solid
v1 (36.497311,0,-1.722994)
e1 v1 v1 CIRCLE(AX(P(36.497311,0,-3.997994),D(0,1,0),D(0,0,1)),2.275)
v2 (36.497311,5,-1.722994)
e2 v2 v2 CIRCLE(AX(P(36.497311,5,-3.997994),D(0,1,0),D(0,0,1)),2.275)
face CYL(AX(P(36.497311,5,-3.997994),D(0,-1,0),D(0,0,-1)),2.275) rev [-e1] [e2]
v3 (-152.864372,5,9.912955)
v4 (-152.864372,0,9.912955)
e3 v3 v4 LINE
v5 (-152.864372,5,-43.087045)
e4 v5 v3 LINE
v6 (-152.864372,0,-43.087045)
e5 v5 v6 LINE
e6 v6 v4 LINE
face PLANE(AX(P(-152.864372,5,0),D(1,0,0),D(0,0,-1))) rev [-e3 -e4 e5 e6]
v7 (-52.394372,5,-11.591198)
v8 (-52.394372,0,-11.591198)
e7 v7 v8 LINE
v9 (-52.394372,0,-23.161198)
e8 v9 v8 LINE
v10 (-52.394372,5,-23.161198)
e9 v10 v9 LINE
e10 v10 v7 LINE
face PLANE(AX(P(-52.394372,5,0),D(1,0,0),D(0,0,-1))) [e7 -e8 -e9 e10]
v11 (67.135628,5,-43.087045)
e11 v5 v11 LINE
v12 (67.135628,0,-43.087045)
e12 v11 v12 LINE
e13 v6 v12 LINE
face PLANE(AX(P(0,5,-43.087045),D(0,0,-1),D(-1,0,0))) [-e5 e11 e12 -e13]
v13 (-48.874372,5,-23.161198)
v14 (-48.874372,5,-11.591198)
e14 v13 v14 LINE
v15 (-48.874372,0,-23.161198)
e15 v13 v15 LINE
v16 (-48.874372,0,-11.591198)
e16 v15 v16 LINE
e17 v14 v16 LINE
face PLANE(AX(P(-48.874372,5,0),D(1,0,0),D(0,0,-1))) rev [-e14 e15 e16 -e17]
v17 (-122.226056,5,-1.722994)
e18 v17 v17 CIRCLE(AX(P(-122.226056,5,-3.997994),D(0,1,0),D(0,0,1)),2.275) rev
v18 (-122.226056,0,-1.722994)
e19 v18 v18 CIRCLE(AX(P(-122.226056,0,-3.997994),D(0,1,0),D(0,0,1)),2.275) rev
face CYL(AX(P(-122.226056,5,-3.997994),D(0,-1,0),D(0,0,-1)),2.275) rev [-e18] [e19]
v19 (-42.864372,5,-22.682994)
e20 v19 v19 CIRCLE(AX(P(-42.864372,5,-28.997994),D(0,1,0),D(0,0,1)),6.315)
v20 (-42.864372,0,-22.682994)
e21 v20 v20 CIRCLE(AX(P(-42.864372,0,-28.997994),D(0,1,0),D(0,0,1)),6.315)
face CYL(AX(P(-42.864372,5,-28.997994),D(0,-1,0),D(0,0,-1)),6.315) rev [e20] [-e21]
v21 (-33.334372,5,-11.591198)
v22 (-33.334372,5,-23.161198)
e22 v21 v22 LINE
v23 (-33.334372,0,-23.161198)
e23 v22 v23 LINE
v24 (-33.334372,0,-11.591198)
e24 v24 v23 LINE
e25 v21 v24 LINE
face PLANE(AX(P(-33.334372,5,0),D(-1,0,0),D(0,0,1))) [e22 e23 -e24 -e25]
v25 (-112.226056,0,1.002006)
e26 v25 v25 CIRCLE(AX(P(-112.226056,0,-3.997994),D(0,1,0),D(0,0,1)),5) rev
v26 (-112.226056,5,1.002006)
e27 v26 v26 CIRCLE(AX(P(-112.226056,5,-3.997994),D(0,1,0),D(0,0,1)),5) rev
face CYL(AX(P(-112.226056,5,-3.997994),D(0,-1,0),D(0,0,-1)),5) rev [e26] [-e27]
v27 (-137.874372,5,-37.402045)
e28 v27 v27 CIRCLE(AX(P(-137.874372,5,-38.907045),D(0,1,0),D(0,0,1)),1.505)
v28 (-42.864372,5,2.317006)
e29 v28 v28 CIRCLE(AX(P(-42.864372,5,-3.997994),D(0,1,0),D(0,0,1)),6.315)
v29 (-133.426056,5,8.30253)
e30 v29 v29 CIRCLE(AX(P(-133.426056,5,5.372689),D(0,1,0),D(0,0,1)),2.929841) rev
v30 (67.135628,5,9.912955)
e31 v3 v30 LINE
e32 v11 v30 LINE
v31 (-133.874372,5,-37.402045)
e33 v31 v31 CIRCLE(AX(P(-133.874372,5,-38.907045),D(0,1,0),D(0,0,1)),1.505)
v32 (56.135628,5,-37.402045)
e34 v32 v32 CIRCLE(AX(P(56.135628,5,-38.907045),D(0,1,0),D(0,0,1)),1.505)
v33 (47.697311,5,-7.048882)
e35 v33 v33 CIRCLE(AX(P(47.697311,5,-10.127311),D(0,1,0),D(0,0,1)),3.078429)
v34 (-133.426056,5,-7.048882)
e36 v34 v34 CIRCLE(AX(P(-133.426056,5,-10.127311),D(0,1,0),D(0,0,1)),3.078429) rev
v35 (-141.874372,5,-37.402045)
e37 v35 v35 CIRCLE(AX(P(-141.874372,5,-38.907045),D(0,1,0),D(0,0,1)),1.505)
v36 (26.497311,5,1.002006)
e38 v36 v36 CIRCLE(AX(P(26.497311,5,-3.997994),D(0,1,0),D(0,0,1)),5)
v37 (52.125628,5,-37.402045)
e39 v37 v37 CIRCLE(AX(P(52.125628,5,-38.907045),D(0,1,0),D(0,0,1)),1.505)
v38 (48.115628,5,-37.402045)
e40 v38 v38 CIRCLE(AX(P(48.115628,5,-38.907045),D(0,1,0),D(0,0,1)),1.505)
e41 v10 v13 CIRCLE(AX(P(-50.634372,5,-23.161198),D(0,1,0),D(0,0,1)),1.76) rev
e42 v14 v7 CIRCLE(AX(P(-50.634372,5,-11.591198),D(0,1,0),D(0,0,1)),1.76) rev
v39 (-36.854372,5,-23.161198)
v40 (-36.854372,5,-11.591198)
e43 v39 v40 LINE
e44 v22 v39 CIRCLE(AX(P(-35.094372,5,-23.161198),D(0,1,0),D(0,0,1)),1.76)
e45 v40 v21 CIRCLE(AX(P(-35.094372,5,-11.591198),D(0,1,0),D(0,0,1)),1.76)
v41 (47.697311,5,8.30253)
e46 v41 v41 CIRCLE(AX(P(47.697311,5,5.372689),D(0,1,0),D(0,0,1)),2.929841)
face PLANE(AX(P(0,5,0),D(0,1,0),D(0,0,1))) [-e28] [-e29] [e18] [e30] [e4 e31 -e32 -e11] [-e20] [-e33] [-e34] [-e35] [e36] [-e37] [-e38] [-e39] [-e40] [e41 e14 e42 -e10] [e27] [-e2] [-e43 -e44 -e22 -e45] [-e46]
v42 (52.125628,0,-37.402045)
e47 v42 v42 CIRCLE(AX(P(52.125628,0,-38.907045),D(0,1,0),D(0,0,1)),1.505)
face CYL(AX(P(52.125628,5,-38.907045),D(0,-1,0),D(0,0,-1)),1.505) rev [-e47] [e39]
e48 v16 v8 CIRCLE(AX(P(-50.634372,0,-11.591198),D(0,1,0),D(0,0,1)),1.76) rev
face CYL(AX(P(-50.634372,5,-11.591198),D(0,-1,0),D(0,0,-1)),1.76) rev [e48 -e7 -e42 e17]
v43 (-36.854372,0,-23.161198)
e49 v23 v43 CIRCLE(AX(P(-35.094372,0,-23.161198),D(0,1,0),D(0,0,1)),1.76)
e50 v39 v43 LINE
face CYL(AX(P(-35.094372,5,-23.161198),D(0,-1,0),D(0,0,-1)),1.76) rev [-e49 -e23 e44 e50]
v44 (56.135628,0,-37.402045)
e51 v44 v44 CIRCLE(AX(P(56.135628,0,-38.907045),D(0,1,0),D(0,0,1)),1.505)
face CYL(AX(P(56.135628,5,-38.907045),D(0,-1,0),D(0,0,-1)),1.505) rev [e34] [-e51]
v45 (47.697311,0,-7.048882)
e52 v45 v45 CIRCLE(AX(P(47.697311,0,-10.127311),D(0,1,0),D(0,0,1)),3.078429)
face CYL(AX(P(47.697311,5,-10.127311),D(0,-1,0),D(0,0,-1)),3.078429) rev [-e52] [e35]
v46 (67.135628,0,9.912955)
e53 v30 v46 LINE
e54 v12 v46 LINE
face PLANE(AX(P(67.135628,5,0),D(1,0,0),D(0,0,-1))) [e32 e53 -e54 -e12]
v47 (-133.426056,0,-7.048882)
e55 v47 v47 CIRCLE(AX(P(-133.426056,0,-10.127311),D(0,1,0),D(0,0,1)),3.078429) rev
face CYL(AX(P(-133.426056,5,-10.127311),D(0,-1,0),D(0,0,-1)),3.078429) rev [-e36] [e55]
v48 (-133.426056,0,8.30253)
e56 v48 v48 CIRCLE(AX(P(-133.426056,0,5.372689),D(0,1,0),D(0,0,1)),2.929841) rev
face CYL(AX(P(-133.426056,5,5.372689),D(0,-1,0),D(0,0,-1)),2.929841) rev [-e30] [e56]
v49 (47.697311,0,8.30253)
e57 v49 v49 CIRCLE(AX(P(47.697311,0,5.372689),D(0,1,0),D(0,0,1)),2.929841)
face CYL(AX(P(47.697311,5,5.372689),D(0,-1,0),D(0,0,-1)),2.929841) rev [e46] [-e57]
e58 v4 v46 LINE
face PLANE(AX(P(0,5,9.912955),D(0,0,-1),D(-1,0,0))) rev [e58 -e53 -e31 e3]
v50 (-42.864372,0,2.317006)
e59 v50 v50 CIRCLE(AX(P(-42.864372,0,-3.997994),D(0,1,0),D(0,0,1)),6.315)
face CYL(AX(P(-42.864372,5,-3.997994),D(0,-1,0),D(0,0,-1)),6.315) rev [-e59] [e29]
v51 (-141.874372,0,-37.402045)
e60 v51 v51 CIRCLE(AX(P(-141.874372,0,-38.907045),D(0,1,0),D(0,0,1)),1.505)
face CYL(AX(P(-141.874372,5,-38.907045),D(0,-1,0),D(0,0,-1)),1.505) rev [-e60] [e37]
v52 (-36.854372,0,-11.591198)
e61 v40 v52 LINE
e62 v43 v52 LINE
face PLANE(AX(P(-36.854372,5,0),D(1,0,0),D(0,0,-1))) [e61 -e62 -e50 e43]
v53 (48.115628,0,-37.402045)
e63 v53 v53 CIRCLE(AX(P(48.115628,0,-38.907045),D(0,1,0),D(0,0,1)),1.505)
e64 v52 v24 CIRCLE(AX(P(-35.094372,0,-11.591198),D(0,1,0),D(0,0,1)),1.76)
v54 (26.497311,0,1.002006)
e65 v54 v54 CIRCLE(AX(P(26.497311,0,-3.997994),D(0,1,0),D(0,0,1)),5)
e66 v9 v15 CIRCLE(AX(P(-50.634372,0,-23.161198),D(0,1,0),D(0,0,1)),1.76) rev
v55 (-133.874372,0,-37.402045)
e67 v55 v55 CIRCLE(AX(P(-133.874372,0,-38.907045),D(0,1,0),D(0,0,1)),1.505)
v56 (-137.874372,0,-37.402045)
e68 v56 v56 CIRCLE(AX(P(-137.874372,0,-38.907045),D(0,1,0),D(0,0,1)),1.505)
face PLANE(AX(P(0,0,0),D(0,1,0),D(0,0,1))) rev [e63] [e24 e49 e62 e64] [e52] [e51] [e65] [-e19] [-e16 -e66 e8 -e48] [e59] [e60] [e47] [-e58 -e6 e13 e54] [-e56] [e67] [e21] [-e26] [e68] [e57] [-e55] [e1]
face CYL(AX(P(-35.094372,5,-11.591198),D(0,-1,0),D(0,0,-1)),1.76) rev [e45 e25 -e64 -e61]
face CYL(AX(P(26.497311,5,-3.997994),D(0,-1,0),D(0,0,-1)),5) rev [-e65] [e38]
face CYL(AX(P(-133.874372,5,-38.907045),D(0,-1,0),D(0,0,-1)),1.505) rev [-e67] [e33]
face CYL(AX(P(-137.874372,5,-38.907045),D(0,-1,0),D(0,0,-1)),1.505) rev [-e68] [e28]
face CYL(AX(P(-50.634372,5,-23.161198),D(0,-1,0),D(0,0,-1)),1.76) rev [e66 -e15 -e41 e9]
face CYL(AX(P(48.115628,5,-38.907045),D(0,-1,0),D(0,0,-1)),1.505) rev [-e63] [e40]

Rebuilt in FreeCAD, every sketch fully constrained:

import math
import FreeCAD as App
import Part
import Sketcher
from FreeCAD import Vector


def add_polygon(sketch, points):
    """Adds a closed chain of lines whose ends are joined by coincident constraints."""
    first, n = sketch.GeometryCount, len(points)
    for a, b in zip(points, points[1:] + points[:1]):
        sketch.addGeometry(Part.LineSegment(App.Vector(*a, 0), App.Vector(*b, 0)), False)
    for i in range(n):
        sketch.addConstraint(Sketcher.Constraint("Coincident", first + i, 2, first + (i + 1) % n, 1))

doc = App.newDocument("Part")
body = doc.addObject("PartDesign::Body", "Body")

# Sketch on XZ plane
sketch1 = body.newObject("Sketcher::SketchObject", "Sketch")
sketch1.AttachmentSupport = (doc.getObject("XZ_Plane"), [""])
sketch1.MapMode = "FlatFace"
add_polygon(sketch1, [(-152.9, -43.1), (-152.9, 9.9), (67.1, 9.9), (67.1, -43.1)])  # lines 0-3
sketch1.addGeometry(Part.Circle(Vector(-133.4, 5.4, 0), Vector(0, 0, 1), 2.9), False)  # 4
sketch1.addGeometry(Part.Circle(Vector(-122.2, -4, 0), Vector(0, 0, 1), 2.3), False)  # 5
sketch1.addGeometry(Part.Circle(Vector(-112.2, -4, 0), Vector(0, 0, 1), 5), False)  # 6
sketch1.addGeometry(Part.Circle(Vector(-133.4, -10.1, 0), Vector(0, 0, 1), 3.1), False)  # 7
sketch1.addGeometry(Part.Circle(Vector(47.7, 5.4, 0), Vector(0, 0, 1), 2.9), False)  # 8
sketch1.addGeometry(Part.Circle(Vector(-42.9, -4, 0), Vector(0, 0, 1), 6.3), False)  # 9
sketch1.addGeometry(Part.Circle(Vector(26.5, -4, 0), Vector(0, 0, 1), 5), False)  # 10
sketch1.addGeometry(Part.Circle(Vector(36.5, -4, 0), Vector(0, 0, 1), 2.3), False)  # 11
sketch1.addGeometry(Part.Circle(Vector(47.7, -10.1, 0), Vector(0, 0, 1), 3.1), False)  # 12
sketch1.addGeometry(Part.LineSegment(Vector(-52.4, -11.6, 0), Vector(-52.4, -23.2, 0)), False)  # 13
sketch1.addGeometry(Part.ArcOfCircle(Part.Circle(Vector(-50.6, -23.2, 0), Vector(0, 0, 1), 1.8), math.radians(180), math.radians(360)), False)  # 14
sketch1.addGeometry(Part.LineSegment(Vector(-48.9, -23.2, 0), Vector(-48.9, -11.6, 0)), False)  # 15
sketch1.addGeometry(Part.ArcOfCircle(Part.Circle(Vector(-50.6, -11.6, 0), Vector(0, 0, 1), 1.8), math.radians(0), math.radians(180)), False)  # 16
sketch1.addGeometry(Part.Circle(Vector(-141.9, -38.9, 0), Vector(0, 0, 1), 1.5), False)  # 17
sketch1.addGeometry(Part.Circle(Vector(-137.9, -38.9, 0), Vector(0, 0, 1), 1.5), False)  # 18
sketch1.addGeometry(Part.Circle(Vector(-133.9, -38.9, 0), Vector(0, 0, 1), 1.5), False)  # 19
sketch1.addGeometry(Part.LineSegment(Vector(-36.9, -11.6, 0), Vector(-36.9, -23.2, 0)), False)  # 20
sketch1.addGeometry(Part.ArcOfCircle(Part.Circle(Vector(-35.1, -23.2, 0), Vector(0, 0, 1), 1.8), math.radians(180), math.radians(360)), False)  # 21
sketch1.addGeometry(Part.LineSegment(Vector(-33.3, -23.2, 0), Vector(-33.3, -11.6, 0)), False)  # 22
sketch1.addGeometry(Part.ArcOfCircle(Part.Circle(Vector(-35.1, -11.6, 0), Vector(0, 0, 1), 1.8), math.radians(0), math.radians(180)), False)  # 23
sketch1.addGeometry(Part.Circle(Vector(-42.9, -29, 0), Vector(0, 0, 1), 6.3), False)  # 24
sketch1.addGeometry(Part.Circle(Vector(48.1, -38.9, 0), Vector(0, 0, 1), 1.5), False)  # 25
sketch1.addGeometry(Part.Circle(Vector(52.1, -38.9, 0), Vector(0, 0, 1), 1.5), False)  # 26
sketch1.addGeometry(Part.Circle(Vector(56.1, -38.9, 0), Vector(0, 0, 1), 1.5), False)  # 27
sketch1.addConstraint([
    Sketcher.Constraint("Tangent", 13, 2, 14, 1),
    Sketcher.Constraint("Tangent", 14, 2, 15, 1),
    Sketcher.Constraint("Tangent", 15, 2, 16, 1),
    Sketcher.Constraint("Tangent", 16, 2, 13, 1),
    Sketcher.Constraint("Tangent", 20, 2, 21, 1),
    Sketcher.Constraint("Tangent", 21, 2, 22, 1),
    Sketcher.Constraint("Tangent", 22, 2, 23, 1),
    Sketcher.Constraint("Tangent", 23, 2, 20, 1),
    Sketcher.Constraint("Vertical", 0),
    Sketcher.Constraint("Horizontal", 1),
    Sketcher.Constraint("Vertical", 2),
    Sketcher.Constraint("Horizontal", 3),
    Sketcher.Constraint("Vertical", 13),
    Sketcher.Constraint("Vertical", 15),
    Sketcher.Constraint("Vertical", 20),
    Sketcher.Constraint("Vertical", 22),
    Sketcher.Constraint("Equal", 4, 8),
    Sketcher.Constraint("Equal", 6, 10),
    Sketcher.Constraint("Equal", 5, 11),
    Sketcher.Constraint("Equal", 7, 12),
    Sketcher.Constraint("Equal", 17, 18),
    Sketcher.Constraint("Equal", 18, 19),
    Sketcher.Constraint("Equal", 16, 21),
    Sketcher.Constraint("Equal", 9, 24),
    Sketcher.Constraint("Equal", 19, 25),
    Sketcher.Constraint("Equal", 25, 26),
    Sketcher.Constraint("Equal", 26, 27),
    Sketcher.Constraint("Horizontal", 5, 3, 6, 3),
    Sketcher.Constraint("Horizontal", 4, 3, 8, 3),
    Sketcher.Constraint("Horizontal", 6, 3, 9, 3),
    Sketcher.Constraint("Horizontal", 9, 3, 10, 3),
    Sketcher.Constraint("Horizontal", 10, 3, 11, 3),
    Sketcher.Constraint("Horizontal", 7, 3, 12, 3),
    Sketcher.Constraint("Horizontal", 17, 3, 18, 3),
    Sketcher.Constraint("Horizontal", 18, 3, 19, 3),
    Sketcher.Constraint("Horizontal", 14, 3, 21, 3),
    Sketcher.Constraint("Horizontal", 16, 3, 23, 3),
    Sketcher.Constraint("Horizontal", 19, 3, 25, 3),
    Sketcher.Constraint("Horizontal", 25, 3, 26, 3),
    Sketcher.Constraint("Horizontal", 26, 3, 27, 3),
    Sketcher.Constraint("Vertical", 4, 3, 7, 3),
    Sketcher.Constraint("Vertical", 8, 3, 12, 3),
    Sketcher.Constraint("Vertical", 9, 3, 24, 3),
    Sketcher.Constraint("Diameter", 6, 10.0),
    Sketcher.Constraint("Diameter", 5, 4.55),
    Sketcher.Constraint("Diameter", 9, 12.63),
    Sketcher.Constraint("Diameter", 17, 3.01),
    Sketcher.Constraint("DistanceX", 1, 1, 1, 2, 220.0),
    Sketcher.Constraint("DistanceY", 0, 1, 0, 2, 53.0),
    Sketcher.Constraint("Radius", 14, 1.76),
    Sketcher.Constraint("DistanceX", 5, 3, 6, 3, 10.0),
    Sketcher.Constraint("DistanceX", 10, 3, 11, 3, 10.0),
    Sketcher.Constraint("DistanceX", 17, 3, 18, 3, 4.0),
    Sketcher.Constraint("DistanceX", 18, 3, 19, 3, 4.0),
    Sketcher.Constraint("DistanceY", 24, 3, 9, 3, 25.0),
    Sketcher.Constraint("DistanceX", 27, 3, 1, 2, 11.0),
    Sketcher.Constraint("DistanceY", 13, 2, 13, 1, 11.57),
    Sketcher.Constraint("DistanceX", 4, 3, 5, 3, 11.2),
    Sketcher.Constraint("DistanceY", 7, 3, 4, 3, 15.5),
    Sketcher.Constraint("DistanceX", 10, 3, 8, 3, 21.2),
    Sketcher.Constraint("DistanceX", 13, 2, 21, 3, 17.3),
    Sketcher.Constraint("Diameter", 7, 6.156858),
    Sketcher.Constraint("DistanceX", 14, 3, 9, 3, 7.77),
    Sketcher.Constraint("DistanceX", 17, 3, 14, 3, 91.24),
    Sketcher.Constraint("DistanceX", 21, 3, 25, 3, 83.21),
    Sketcher.Constraint("DistanceX", 25, 3, 26, 3, 4.01),
    Sketcher.Constraint("DistanceX", 26, 3, 27, 3, 4.01),
    Sketcher.Constraint("DistanceY", 17, 3, 0, 2, 48.82),
    Sketcher.Constraint("Diameter", 4, 5.859682),
    Sketcher.Constraint("DistanceY", -1, 1, 4, 3, 5.372689),
    Sketcher.Constraint("DistanceX", -1, 1, 8, 3, 47.697311),
    Sketcher.Constraint("DistanceY", 17, 3, 5, 3, 34.909051),
    Sketcher.Constraint("DistanceX", 4, 3, -1, 1, 133.426056),
    Sketcher.Constraint("DistanceY", 5, 3, -1, 1, 3.997994),
    Sketcher.Constraint("DistanceX", 9, 3, -1, 1, 42.864372),
    Sketcher.Constraint("DistanceY", 14, 3, -1, 1, 23.161198),
])
pad1 = body.newObject("PartDesign::Pad", "Pad")
pad1.Profile = sketch1
pad1.Length = 5
pad1.Reversed = True

doc.recompute()
